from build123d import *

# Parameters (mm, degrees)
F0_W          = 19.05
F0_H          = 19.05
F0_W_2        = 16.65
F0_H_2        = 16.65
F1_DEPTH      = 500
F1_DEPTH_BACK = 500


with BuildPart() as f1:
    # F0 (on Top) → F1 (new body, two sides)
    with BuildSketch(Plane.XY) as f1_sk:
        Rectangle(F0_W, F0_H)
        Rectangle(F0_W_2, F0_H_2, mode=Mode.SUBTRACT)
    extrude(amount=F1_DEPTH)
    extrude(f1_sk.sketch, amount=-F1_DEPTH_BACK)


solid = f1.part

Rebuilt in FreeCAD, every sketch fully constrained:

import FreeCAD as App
import Part
import Sketcher
Q = App.Units.Quantity

doc = App.newDocument("Part")
body = doc.addObject("PartDesign::Body", "Body")

sketch1 = body.newObject("Sketcher::SketchObject", "Sketch")
sketch1.AttachmentSupport = (doc.getObject("XY_Plane"), [""])
sketch1.MapMode = "FlatFace"
sketch1.addGeometry(Part.LineSegment(App.Vector(-9.525, 9.525, 0), App.Vector(-9.525, -9.525, 0)), False)
sketch1.addGeometry(Part.LineSegment(App.Vector(-9.525, -9.525, 0), App.Vector(9.525, -9.525, 0)), False)
sketch1.addGeometry(Part.LineSegment(App.Vector(9.525, -9.525, 0), App.Vector(9.525, 9.525, 0)), False)
sketch1.addGeometry(Part.LineSegment(App.Vector(9.525, 9.525, 0), App.Vector(-9.525, 9.525, 0)), False)
sketch1.addGeometry(Part.LineSegment(App.Vector(8.325, -8.325, 0), App.Vector(-8.325, -8.325, 0)), False)
sketch1.addGeometry(Part.LineSegment(App.Vector(-8.325, -8.325, 0), App.Vector(-8.325, 8.325, 0)), False)
sketch1.addGeometry(Part.LineSegment(App.Vector(-8.325, 8.325, 0), App.Vector(8.325, 8.325, 0)), False)
sketch1.addGeometry(Part.LineSegment(App.Vector(8.325, 8.325, 0), App.Vector(8.325, -8.325, 0)), False)
sketch1.addConstraint(Sketcher.Constraint("Coincident", 0, 2, 1, 1))
sketch1.addConstraint(Sketcher.Constraint("Coincident", 1, 2, 2, 1))
sketch1.addConstraint(Sketcher.Constraint("Coincident", 2, 2, 3, 1))
sketch1.addConstraint(Sketcher.Constraint("Coincident", 3, 2, 0, 1))
sketch1.addConstraint(Sketcher.Constraint("Coincident", 4, 2, 5, 1))
sketch1.addConstraint(Sketcher.Constraint("Coincident", 5, 2, 6, 1))
sketch1.addConstraint(Sketcher.Constraint("Coincident", 6, 2, 7, 1))
sketch1.addConstraint(Sketcher.Constraint("Coincident", 7, 2, 4, 1))
sketch1.addConstraint(Sketcher.Constraint("Vertical", 0))
sketch1.addConstraint(Sketcher.Constraint("Horizontal", 1))
sketch1.addConstraint(Sketcher.Constraint("Vertical", 2))
sketch1.addConstraint(Sketcher.Constraint("Horizontal", 3))
sketch1.addConstraint(Sketcher.Constraint("Horizontal", 4))
sketch1.addConstraint(Sketcher.Constraint("Vertical", 5))
sketch1.addConstraint(Sketcher.Constraint("Horizontal", 6))
sketch1.addConstraint(Sketcher.Constraint("Vertical", 7))
sketch1.addConstraint(Sketcher.Constraint("Symmetric", 0, 2, 2, 2, -1, 1))
sketch1.addConstraint(Sketcher.Constraint("Symmetric", 4, 2, 6, 2, -1, 1))
sketch1.addConstraint(Sketcher.Constraint("Equal", 3, 0))
sketch1.addConstraint(Sketcher.Constraint("Equal", 6, 5))
sketch1.addConstraint(Sketcher.Constraint("DistanceX", 1, 1, 1, 2, Q("19.05 mm")))
sketch1.addConstraint(Sketcher.Constraint("DistanceX", 4, 2, 4, 1, Q("16.65 mm")))
pad1 = body.newObject("PartDesign::Pad", "Pad")
pad1.Profile = sketch1
pad1.Type = "TwoLengths"
pad1.Length = 500
pad1.Length2 = 500

doc.recompute()
